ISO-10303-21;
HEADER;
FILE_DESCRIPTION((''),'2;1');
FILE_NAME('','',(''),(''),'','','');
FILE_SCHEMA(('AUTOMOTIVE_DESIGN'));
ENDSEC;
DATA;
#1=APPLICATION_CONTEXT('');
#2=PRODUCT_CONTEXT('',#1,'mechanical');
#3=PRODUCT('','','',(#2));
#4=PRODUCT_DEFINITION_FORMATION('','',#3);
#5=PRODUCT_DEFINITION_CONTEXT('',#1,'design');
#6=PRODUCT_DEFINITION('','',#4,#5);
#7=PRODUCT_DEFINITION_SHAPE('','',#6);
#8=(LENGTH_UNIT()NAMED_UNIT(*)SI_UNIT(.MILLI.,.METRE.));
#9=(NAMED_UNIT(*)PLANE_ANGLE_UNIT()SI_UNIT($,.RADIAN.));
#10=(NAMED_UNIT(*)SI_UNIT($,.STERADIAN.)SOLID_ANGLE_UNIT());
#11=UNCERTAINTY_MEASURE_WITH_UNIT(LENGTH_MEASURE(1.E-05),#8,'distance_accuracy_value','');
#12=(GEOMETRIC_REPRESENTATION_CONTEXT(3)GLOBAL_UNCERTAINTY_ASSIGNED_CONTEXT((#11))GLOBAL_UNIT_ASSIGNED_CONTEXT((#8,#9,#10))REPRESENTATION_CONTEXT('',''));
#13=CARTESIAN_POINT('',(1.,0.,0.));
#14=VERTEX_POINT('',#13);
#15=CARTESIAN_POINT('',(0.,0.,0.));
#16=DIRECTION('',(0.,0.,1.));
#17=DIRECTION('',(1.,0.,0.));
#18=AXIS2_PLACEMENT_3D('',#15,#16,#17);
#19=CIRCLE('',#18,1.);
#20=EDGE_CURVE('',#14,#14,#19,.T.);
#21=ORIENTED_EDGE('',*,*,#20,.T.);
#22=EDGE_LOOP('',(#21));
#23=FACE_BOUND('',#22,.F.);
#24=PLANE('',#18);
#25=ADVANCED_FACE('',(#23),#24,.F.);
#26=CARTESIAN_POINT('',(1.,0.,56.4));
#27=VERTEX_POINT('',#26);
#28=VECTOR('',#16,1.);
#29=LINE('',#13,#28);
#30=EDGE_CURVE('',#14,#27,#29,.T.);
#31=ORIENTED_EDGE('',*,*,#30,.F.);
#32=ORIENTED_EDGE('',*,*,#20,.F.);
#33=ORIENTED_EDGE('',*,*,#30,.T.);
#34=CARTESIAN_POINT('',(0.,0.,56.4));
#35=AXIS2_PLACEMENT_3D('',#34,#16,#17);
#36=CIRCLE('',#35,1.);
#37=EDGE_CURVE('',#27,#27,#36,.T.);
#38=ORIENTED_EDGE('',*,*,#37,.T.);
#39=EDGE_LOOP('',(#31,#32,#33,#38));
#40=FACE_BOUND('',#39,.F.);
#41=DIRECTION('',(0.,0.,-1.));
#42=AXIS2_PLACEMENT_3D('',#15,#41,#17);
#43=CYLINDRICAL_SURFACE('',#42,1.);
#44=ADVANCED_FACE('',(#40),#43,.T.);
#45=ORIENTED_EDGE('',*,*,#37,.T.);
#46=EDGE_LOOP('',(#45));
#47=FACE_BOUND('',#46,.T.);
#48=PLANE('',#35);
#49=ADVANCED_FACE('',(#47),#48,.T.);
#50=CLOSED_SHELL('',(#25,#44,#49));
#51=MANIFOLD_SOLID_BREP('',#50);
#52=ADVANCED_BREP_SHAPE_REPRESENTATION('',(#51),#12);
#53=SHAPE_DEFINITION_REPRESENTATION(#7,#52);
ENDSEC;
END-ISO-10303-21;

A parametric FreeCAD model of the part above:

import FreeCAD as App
import Part
import Sketcher
from FreeCAD import Vector
Q = App.Units.Quantity

doc = App.newDocument("Part")
body = doc.addObject("PartDesign::Body", "Body")

# Sketch on XY plane
sketch1 = body.newObject("Sketcher::SketchObject", "Sketch")
sketch1.AttachmentSupport = (doc.getObject("XY_Plane"), [""])
sketch1.MapMode = "FlatFace"
sketch1.addGeometry(Part.Circle(Vector(0, 0, 0), Vector(0, 0, 1), 1), False)
sketch1.addConstraint([
    Sketcher.Constraint("Coincident", 0, 3, -1, 1),
    Sketcher.Constraint("Diameter", 0, Q("2 mm")),
])
pad1 = body.newObject("PartDesign::Pad", "Pad")
pad1.Profile = sketch1
pad1.Length = 56.4

doc.recompute()
